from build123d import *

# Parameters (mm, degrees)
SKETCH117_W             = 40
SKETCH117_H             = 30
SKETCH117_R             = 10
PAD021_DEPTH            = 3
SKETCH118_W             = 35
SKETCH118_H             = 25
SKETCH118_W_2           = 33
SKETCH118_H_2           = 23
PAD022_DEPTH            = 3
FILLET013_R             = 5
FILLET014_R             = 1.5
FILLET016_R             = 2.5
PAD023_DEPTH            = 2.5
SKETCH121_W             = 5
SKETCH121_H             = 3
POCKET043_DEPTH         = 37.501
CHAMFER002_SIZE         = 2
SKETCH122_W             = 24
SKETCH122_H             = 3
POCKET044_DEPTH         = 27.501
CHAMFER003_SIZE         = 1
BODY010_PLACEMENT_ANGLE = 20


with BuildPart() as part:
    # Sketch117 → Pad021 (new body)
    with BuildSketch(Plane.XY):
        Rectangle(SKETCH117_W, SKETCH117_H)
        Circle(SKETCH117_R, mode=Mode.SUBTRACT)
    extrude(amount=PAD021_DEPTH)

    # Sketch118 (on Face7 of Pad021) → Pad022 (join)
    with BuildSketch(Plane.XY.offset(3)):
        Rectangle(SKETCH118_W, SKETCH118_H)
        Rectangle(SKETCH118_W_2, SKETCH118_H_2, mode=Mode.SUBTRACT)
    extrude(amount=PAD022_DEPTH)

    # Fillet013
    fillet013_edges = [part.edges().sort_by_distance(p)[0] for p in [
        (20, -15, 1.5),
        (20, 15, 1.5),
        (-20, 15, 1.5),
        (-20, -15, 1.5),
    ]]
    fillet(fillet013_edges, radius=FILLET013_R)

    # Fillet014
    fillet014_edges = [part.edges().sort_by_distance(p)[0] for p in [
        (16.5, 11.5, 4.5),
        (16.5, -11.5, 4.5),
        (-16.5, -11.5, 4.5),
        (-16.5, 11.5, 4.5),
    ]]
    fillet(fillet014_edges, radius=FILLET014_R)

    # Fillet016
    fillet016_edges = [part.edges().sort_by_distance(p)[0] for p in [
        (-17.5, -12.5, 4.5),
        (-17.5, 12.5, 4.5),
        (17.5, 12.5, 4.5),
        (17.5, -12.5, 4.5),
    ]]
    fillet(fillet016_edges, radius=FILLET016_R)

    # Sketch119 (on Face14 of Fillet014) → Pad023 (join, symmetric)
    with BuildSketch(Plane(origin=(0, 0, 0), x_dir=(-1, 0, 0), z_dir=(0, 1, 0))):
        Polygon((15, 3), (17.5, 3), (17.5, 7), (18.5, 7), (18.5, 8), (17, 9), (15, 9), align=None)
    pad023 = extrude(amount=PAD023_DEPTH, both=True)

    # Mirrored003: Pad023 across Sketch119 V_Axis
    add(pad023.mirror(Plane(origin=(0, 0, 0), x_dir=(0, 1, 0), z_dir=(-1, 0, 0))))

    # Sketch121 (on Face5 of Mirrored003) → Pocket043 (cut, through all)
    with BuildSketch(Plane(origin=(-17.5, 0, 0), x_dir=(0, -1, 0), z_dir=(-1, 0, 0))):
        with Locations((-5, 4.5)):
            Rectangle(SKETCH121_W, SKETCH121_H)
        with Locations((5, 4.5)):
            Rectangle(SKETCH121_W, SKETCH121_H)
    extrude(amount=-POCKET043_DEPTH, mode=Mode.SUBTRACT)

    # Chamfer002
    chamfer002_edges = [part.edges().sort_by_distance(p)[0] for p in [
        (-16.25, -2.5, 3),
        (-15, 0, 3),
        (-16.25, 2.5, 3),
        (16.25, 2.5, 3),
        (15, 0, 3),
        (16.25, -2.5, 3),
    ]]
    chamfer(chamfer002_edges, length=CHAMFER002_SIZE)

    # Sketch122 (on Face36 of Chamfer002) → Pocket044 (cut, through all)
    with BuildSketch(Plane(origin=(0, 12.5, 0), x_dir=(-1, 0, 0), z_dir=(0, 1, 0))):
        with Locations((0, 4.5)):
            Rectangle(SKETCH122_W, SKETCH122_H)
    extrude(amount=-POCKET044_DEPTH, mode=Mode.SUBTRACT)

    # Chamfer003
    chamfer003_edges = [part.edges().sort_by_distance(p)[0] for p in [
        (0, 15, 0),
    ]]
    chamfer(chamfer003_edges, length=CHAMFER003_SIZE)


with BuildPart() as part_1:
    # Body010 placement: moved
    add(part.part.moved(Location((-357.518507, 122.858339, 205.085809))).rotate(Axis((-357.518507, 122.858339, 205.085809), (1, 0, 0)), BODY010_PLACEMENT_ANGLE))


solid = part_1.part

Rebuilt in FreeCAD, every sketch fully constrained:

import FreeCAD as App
import Part
import Sketcher
from FreeCAD import Vector
Q = App.Units.Quantity


def edges_at(feature, points):
    """Names of the edges that pass closest to the given points."""
    edges = feature.Shape.Edges
    near = lambda p: min(range(len(edges)), key=lambda i: edges[i].distToShape(Part.Vertex(*p))[0])
    return sorted({f"Edge{near(p) + 1}" for p in points})

doc = App.newDocument("Part")
body = doc.addObject("PartDesign::Body", "Body")

sketch1 = doc.addObject("Sketcher::SketchObject", "Sketch")
body.addObject(sketch1)
sketch1.AttachmentSupport = (doc.XY_Plane, [""])
sketch1.MapMode = "FlatFace"
sketch1.addGeometry([
    Part.LineSegment(Vector(-20, 15, 0), Vector(-20, -15, 0)),
    Part.LineSegment(Vector(-20, -15, 0), Vector(20, -15, 0)),
    Part.LineSegment(Vector(20, -15, 0), Vector(20, 15, 0)),
    Part.LineSegment(Vector(20, 15, 0), Vector(-20, 15, 0)),
    Part.Circle(Vector(0, 0, 0), Vector(0, 0, 1), 10),
], False)
sketch1.addConstraint([
    Sketcher.Constraint("Coincident", 0, 2, 1, 1),
    Sketcher.Constraint("Coincident", 1, 2, 2, 1),
    Sketcher.Constraint("Coincident", 2, 2, 3, 1),
    Sketcher.Constraint("Coincident", 3, 2, 0, 1),
    Sketcher.Constraint("Vertical", 0),
    Sketcher.Constraint("Horizontal", 1),
    Sketcher.Constraint("Vertical", 2),
    Sketcher.Constraint("Horizontal", 3),
    Sketcher.Constraint("Coincident", 4, 3, -1, 1),
    Sketcher.Constraint("Symmetric", 0, 2, 2, 2, -1, 1),
    Sketcher.Constraint("Diameter", 4, Q("20 mm")),
    Sketcher.Constraint("DistanceX", 1, 1, 1, 2, Q("40 mm")),
    Sketcher.Constraint("DistanceY", 0, 2, 0, 1, Q("30 mm")),
])
pad1 = doc.addObject("PartDesign::Pad", "Pad")
body.addObject(pad1)
pad1.Profile = sketch1
pad1.Length = 3

sketch2 = doc.addObject("Sketcher::SketchObject", "Sketch001")
body.addObject(sketch2)
sketch2.AttachmentSupport = (doc.XY_Plane, [""])
sketch2.MapMode = "FlatFace"
sketch2.AttachmentOffset = App.Placement(Vector(0, 0, 3), App.Rotation())
sketch2.addGeometry([
    Part.LineSegment(Vector(-17.5, 12.5, 0), Vector(-17.5, -12.5, 0)),
    Part.LineSegment(Vector(-17.5, -12.5, 0), Vector(17.5, -12.5, 0)),
    Part.LineSegment(Vector(17.5, -12.5, 0), Vector(17.5, 12.5, 0)),
    Part.LineSegment(Vector(17.5, 12.5, 0), Vector(-17.5, 12.5, 0)),
    Part.LineSegment(Vector(16.5, -11.5, 0), Vector(-16.5, -11.5, 0)),
    Part.LineSegment(Vector(-16.5, -11.5, 0), Vector(-16.5, 11.5, 0)),
    Part.LineSegment(Vector(-16.5, 11.5, 0), Vector(16.5, 11.5, 0)),
    Part.LineSegment(Vector(16.5, 11.5, 0), Vector(16.5, -11.5, 0)),
], False)
sketch2.addConstraint([
    Sketcher.Constraint("Coincident", 0, 2, 1, 1),
    Sketcher.Constraint("Coincident", 1, 2, 2, 1),
    Sketcher.Constraint("Coincident", 2, 2, 3, 1),
    Sketcher.Constraint("Coincident", 3, 2, 0, 1),
    Sketcher.Constraint("Coincident", 4, 2, 5, 1),
    Sketcher.Constraint("Coincident", 5, 2, 6, 1),
    Sketcher.Constraint("Coincident", 6, 2, 7, 1),
    Sketcher.Constraint("Coincident", 7, 2, 4, 1),
    Sketcher.Constraint("Vertical", 0),
    Sketcher.Constraint("Horizontal", 1),
    Sketcher.Constraint("Vertical", 2),
    Sketcher.Constraint("Horizontal", 3),
    Sketcher.Constraint("Horizontal", 4),
    Sketcher.Constraint("Vertical", 5),
    Sketcher.Constraint("Horizontal", 6),
    Sketcher.Constraint("Vertical", 7),
    Sketcher.Constraint("Symmetric", 0, 2, 2, 2, -1, 1),
    Sketcher.Constraint("Symmetric", 4, 2, 6, 2, -1, 1),
    Sketcher.Constraint("DistanceX", 1, 1, 1, 2, Q("35 mm")),
    Sketcher.Constraint("DistanceX", 4, 2, 4, 1, Q("33 mm")),
    Sketcher.Constraint("DistanceY", 0, 2, 0, 1, Q("25 mm")),
    Sketcher.Constraint("DistanceY", 5, 1, 5, 2, Q("23 mm")),
])
pad2 = doc.addObject("PartDesign::Pad", "Pad001")
body.addObject(pad2)
pad2.Profile = sketch2
pad2.Length = 3
doc.recompute()

fillet = doc.addObject("PartDesign::Fillet", "Fillet")
body.addObject(fillet)
fillet.Base = (pad2, edges_at(pad2, [
    (20, -15, 1.5),
    (20, 15, 1.5),
    (-20, 15, 1.5),
    (-20, -15, 1.5),
]))
fillet.Radius = 5
doc.recompute()

fillet2 = doc.addObject("PartDesign::Fillet", "Fillet001")
body.addObject(fillet2)
fillet2.Base = (fillet, edges_at(fillet, [
    (16.5, 11.5, 4.5),
    (16.5, -11.5, 4.5),
    (-16.5, -11.5, 4.5),
    (-16.5, 11.5, 4.5),
]))
fillet2.Radius = 1.5
doc.recompute()

fillet3 = doc.addObject("PartDesign::Fillet", "Fillet002")
body.addObject(fillet3)
fillet3.Base = (fillet2, edges_at(fillet2, [
    (-17.5, -12.5, 4.5),
    (-17.5, 12.5, 4.5),
    (17.5, 12.5, 4.5),
    (17.5, -12.5, 4.5),
]))
fillet3.Radius = 2.5

sketch3 = doc.addObject("Sketcher::SketchObject", "Sketch002")
body.addObject(sketch3)
sketch3.AttachmentSupport = (doc.XZ_Plane, [""])
sketch3.MapMode = "FlatFace"
sketch3.addGeometry([
    Part.LineSegment(Vector(-15, 3, 0), Vector(-17.5, 3, 0)),
    Part.LineSegment(Vector(-17.5, 3, 0), Vector(-17.5, 7, 0)),
    Part.LineSegment(Vector(-17.5, 7, 0), Vector(-18.5, 7, 0)),
    Part.LineSegment(Vector(-18.5, 7, 0), Vector(-18.5, 8, 0)),
    Part.LineSegment(Vector(-18.5, 8, 0), Vector(-17, 9, 0)),
    Part.LineSegment(Vector(-17, 9, 0), Vector(-15, 9, 0)),
    Part.LineSegment(Vector(-15, 9, 0), Vector(-15, 3, 0)),
], False)
sketch3.addConstraint([
    Sketcher.Constraint("Coincident", 0, 2, 1, 1),
    Sketcher.Constraint("Coincident", 1, 2, 2, 1),
    Sketcher.Constraint("Coincident", 2, 2, 3, 1),
    Sketcher.Constraint("Coincident", 3, 2, 4, 1),
    Sketcher.Constraint("Coincident", 4, 2, 5, 1),
    Sketcher.Constraint("Coincident", 5, 2, 6, 1),
    Sketcher.Constraint("Coincident", 6, 2, 0, 1),
    Sketcher.Constraint("Horizontal", 0),
    Sketcher.Constraint("Vertical", 1),
    Sketcher.Constraint("Horizontal", 2),
    Sketcher.Constraint("Vertical", 3),
    Sketcher.Constraint("Horizontal", 5),
    Sketcher.Constraint("Vertical", 6),
    Sketcher.Constraint("Equal", 2, 3),
    Sketcher.Constraint("DistanceX", 2, 2, 2, 1, Q("1 mm")),
    Sketcher.Constraint("DistanceX", 5, 1, 5, 2, Q("2 mm")),
    Sketcher.Constraint("DistanceY", 1, 1, 1, 2, Q("4 mm")),
    Sketcher.Constraint("DistanceY", 6, 2, 6, 1, Q("6 mm")),
    Sketcher.Constraint("DistanceX", 0, 2, 0, 1, Q("2.5 mm")),
    Sketcher.Constraint("DistanceY", -1, 1, 0, 2, Q("3 mm")),
    Sketcher.Constraint("DistanceX", 4, 2, -1, 1, Q("17 mm")),
])
pad3 = doc.addObject("PartDesign::Pad", "Pad002")
body.addObject(pad3)
pad3.Profile = sketch3
pad3.Length = 5
pad3.Midplane = True
doc.recompute()

mirrored = doc.addObject("PartDesign::Mirrored", "Mirrored")
body.addObject(mirrored)
mirrored.Originals = [pad3]
mirrored.MirrorPlane = (doc.YZ_Plane, [""])
body.Tip = mirrored

sketch4 = doc.addObject("Sketcher::SketchObject", "Sketch003")
body.addObject(sketch4)
sketch4.AttachmentSupport = (doc.YZ_Plane, [""])
sketch4.MapMode = "FlatFace"
sketch4.AttachmentOffset = App.Placement(Vector(0, 0, -17.5), App.Rotation())
sketch4.addGeometry([
    Part.LineSegment(Vector(7.5, 6, 0), Vector(7.5, 3, 0)),
    Part.LineSegment(Vector(7.5, 3, 0), Vector(2.5, 3, 0)),
    Part.LineSegment(Vector(2.5, 3, 0), Vector(2.5, 6, 0)),
    Part.LineSegment(Vector(2.5, 6, 0), Vector(7.5, 6, 0)),
    Part.LineSegment(Vector(-2.5, 6, 0), Vector(-2.5, 3, 0)),
    Part.LineSegment(Vector(-2.5, 3, 0), Vector(-7.5, 3, 0)),
    Part.LineSegment(Vector(-7.5, 3, 0), Vector(-7.5, 6, 0)),
    Part.LineSegment(Vector(-7.5, 6, 0), Vector(-2.5, 6, 0)),
], False)
sketch4.addConstraint([
    Sketcher.Constraint("Coincident", 0, 2, 1, 1),
    Sketcher.Constraint("Coincident", 1, 2, 2, 1),
    Sketcher.Constraint("Coincident", 2, 2, 3, 1),
    Sketcher.Constraint("Coincident", 3, 2, 0, 1),
    Sketcher.Constraint("Coincident", 4, 2, 5, 1),
    Sketcher.Constraint("Coincident", 5, 2, 6, 1),
    Sketcher.Constraint("Coincident", 6, 2, 7, 1),
    Sketcher.Constraint("Coincident", 7, 2, 4, 1),
    Sketcher.Constraint("Vertical", 0),
    Sketcher.Constraint("Horizontal", 1),
    Sketcher.Constraint("Vertical", 2),
    Sketcher.Constraint("Horizontal", 3),
    Sketcher.Constraint("Vertical", 4),
    Sketcher.Constraint("Horizontal", 5),
    Sketcher.Constraint("Vertical", 6),
    Sketcher.Constraint("Horizontal", 7),
    Sketcher.Constraint("Symmetric", 1, 2, 4, 2, -2),
    Sketcher.Constraint("Symmetric", 3, 2, 6, 2, -2),
    Sketcher.Constraint("DistanceX", 1, 2, 1, 1, Q("5 mm")),
    Sketcher.Constraint("DistanceY", 0, 2, 0, 1, Q("3 mm")),
    Sketcher.Constraint("DistanceY", -1, 1, 0, 2, Q("3 mm")),
    Sketcher.Constraint("DistanceX", 4, 2, 1, 2, Q("5 mm")),
])
pocket1 = doc.addObject("PartDesign::Pocket", "Pocket")
body.addObject(pocket1)
pocket1.Profile = sketch4
pocket1.Type = "ThroughAll"
pocket1.Reversed = True
doc.recompute()

chamfer = doc.addObject("PartDesign::Chamfer", "Chamfer")
body.addObject(chamfer)
chamfer.Base = (pocket1, edges_at(pocket1, [
    (-16.25, -2.5, 3),
    (-15, 0, 3),
    (-16.25, 2.5, 3),
    (16.25, 2.5, 3),
    (15, 0, 3),
    (16.25, -2.5, 3),
]))
chamfer.Size = 2

sketch5 = doc.addObject("Sketcher::SketchObject", "Sketch004")
body.addObject(sketch5)
sketch5.AttachmentSupport = (doc.XZ_Plane, [""])
sketch5.MapMode = "FlatFace"
sketch5.AttachmentOffset = App.Placement(Vector(0, 0, -12.5), App.Rotation())
sketch5.addGeometry([
    Part.LineSegment(Vector(12, 6, 0), Vector(12, 3, 0)),
    Part.LineSegment(Vector(12, 3, 0), Vector(-12, 3, 0)),
    Part.LineSegment(Vector(-12, 3, 0), Vector(-12, 6, 0)),
    Part.LineSegment(Vector(-12, 6, 0), Vector(12, 6, 0)),
], False)
sketch5.addConstraint([
    Sketcher.Constraint("Coincident", 0, 2, 1, 1),
    Sketcher.Constraint("Coincident", 1, 2, 2, 1),
    Sketcher.Constraint("Coincident", 2, 2, 3, 1),
    Sketcher.Constraint("Coincident", 3, 2, 0, 1),
    Sketcher.Constraint("Vertical", 0),
    Sketcher.Constraint("Horizontal", 1),
    Sketcher.Constraint("Vertical", 2),
    Sketcher.Constraint("Horizontal", 3),
    Sketcher.Constraint("DistanceX", 1, 2, 1, 1, Q("24 mm")),
    Sketcher.Constraint("DistanceY", 0, 2, 0, 1, Q("3 mm")),
    Sketcher.Constraint("DistanceX", -1, 1, 0, 2, Q("12 mm")),
    Sketcher.Constraint("DistanceY", -1, 1, 0, 2, Q("3 mm")),
])
pocket2 = doc.addObject("PartDesign::Pocket", "Pocket001")
body.addObject(pocket2)
pocket2.Profile = sketch5
pocket2.Type = "ThroughAll"
pocket2.Reversed = True
doc.recompute()

chamfer2 = doc.addObject("PartDesign::Chamfer", "Chamfer001")
body.addObject(chamfer2)
chamfer2.Base = (pocket2, edges_at(pocket2, [(0, 15, 0)]))
chamfer2.Size = 1
body2 = doc.addObject("PartDesign::Body", "Body001")
doc.recompute()

body.Placement = App.Placement(Vector(-357.518507, 122.858339, 205.085809), App.Rotation(Vector(1, 0, 0), 20))
boolean = doc.addObject("PartDesign::Boolean", "Boolean")
body2.addObject(boolean)
boolean.Type = "Fuse"
boolean.addObjects([body])

doc.recompute()
